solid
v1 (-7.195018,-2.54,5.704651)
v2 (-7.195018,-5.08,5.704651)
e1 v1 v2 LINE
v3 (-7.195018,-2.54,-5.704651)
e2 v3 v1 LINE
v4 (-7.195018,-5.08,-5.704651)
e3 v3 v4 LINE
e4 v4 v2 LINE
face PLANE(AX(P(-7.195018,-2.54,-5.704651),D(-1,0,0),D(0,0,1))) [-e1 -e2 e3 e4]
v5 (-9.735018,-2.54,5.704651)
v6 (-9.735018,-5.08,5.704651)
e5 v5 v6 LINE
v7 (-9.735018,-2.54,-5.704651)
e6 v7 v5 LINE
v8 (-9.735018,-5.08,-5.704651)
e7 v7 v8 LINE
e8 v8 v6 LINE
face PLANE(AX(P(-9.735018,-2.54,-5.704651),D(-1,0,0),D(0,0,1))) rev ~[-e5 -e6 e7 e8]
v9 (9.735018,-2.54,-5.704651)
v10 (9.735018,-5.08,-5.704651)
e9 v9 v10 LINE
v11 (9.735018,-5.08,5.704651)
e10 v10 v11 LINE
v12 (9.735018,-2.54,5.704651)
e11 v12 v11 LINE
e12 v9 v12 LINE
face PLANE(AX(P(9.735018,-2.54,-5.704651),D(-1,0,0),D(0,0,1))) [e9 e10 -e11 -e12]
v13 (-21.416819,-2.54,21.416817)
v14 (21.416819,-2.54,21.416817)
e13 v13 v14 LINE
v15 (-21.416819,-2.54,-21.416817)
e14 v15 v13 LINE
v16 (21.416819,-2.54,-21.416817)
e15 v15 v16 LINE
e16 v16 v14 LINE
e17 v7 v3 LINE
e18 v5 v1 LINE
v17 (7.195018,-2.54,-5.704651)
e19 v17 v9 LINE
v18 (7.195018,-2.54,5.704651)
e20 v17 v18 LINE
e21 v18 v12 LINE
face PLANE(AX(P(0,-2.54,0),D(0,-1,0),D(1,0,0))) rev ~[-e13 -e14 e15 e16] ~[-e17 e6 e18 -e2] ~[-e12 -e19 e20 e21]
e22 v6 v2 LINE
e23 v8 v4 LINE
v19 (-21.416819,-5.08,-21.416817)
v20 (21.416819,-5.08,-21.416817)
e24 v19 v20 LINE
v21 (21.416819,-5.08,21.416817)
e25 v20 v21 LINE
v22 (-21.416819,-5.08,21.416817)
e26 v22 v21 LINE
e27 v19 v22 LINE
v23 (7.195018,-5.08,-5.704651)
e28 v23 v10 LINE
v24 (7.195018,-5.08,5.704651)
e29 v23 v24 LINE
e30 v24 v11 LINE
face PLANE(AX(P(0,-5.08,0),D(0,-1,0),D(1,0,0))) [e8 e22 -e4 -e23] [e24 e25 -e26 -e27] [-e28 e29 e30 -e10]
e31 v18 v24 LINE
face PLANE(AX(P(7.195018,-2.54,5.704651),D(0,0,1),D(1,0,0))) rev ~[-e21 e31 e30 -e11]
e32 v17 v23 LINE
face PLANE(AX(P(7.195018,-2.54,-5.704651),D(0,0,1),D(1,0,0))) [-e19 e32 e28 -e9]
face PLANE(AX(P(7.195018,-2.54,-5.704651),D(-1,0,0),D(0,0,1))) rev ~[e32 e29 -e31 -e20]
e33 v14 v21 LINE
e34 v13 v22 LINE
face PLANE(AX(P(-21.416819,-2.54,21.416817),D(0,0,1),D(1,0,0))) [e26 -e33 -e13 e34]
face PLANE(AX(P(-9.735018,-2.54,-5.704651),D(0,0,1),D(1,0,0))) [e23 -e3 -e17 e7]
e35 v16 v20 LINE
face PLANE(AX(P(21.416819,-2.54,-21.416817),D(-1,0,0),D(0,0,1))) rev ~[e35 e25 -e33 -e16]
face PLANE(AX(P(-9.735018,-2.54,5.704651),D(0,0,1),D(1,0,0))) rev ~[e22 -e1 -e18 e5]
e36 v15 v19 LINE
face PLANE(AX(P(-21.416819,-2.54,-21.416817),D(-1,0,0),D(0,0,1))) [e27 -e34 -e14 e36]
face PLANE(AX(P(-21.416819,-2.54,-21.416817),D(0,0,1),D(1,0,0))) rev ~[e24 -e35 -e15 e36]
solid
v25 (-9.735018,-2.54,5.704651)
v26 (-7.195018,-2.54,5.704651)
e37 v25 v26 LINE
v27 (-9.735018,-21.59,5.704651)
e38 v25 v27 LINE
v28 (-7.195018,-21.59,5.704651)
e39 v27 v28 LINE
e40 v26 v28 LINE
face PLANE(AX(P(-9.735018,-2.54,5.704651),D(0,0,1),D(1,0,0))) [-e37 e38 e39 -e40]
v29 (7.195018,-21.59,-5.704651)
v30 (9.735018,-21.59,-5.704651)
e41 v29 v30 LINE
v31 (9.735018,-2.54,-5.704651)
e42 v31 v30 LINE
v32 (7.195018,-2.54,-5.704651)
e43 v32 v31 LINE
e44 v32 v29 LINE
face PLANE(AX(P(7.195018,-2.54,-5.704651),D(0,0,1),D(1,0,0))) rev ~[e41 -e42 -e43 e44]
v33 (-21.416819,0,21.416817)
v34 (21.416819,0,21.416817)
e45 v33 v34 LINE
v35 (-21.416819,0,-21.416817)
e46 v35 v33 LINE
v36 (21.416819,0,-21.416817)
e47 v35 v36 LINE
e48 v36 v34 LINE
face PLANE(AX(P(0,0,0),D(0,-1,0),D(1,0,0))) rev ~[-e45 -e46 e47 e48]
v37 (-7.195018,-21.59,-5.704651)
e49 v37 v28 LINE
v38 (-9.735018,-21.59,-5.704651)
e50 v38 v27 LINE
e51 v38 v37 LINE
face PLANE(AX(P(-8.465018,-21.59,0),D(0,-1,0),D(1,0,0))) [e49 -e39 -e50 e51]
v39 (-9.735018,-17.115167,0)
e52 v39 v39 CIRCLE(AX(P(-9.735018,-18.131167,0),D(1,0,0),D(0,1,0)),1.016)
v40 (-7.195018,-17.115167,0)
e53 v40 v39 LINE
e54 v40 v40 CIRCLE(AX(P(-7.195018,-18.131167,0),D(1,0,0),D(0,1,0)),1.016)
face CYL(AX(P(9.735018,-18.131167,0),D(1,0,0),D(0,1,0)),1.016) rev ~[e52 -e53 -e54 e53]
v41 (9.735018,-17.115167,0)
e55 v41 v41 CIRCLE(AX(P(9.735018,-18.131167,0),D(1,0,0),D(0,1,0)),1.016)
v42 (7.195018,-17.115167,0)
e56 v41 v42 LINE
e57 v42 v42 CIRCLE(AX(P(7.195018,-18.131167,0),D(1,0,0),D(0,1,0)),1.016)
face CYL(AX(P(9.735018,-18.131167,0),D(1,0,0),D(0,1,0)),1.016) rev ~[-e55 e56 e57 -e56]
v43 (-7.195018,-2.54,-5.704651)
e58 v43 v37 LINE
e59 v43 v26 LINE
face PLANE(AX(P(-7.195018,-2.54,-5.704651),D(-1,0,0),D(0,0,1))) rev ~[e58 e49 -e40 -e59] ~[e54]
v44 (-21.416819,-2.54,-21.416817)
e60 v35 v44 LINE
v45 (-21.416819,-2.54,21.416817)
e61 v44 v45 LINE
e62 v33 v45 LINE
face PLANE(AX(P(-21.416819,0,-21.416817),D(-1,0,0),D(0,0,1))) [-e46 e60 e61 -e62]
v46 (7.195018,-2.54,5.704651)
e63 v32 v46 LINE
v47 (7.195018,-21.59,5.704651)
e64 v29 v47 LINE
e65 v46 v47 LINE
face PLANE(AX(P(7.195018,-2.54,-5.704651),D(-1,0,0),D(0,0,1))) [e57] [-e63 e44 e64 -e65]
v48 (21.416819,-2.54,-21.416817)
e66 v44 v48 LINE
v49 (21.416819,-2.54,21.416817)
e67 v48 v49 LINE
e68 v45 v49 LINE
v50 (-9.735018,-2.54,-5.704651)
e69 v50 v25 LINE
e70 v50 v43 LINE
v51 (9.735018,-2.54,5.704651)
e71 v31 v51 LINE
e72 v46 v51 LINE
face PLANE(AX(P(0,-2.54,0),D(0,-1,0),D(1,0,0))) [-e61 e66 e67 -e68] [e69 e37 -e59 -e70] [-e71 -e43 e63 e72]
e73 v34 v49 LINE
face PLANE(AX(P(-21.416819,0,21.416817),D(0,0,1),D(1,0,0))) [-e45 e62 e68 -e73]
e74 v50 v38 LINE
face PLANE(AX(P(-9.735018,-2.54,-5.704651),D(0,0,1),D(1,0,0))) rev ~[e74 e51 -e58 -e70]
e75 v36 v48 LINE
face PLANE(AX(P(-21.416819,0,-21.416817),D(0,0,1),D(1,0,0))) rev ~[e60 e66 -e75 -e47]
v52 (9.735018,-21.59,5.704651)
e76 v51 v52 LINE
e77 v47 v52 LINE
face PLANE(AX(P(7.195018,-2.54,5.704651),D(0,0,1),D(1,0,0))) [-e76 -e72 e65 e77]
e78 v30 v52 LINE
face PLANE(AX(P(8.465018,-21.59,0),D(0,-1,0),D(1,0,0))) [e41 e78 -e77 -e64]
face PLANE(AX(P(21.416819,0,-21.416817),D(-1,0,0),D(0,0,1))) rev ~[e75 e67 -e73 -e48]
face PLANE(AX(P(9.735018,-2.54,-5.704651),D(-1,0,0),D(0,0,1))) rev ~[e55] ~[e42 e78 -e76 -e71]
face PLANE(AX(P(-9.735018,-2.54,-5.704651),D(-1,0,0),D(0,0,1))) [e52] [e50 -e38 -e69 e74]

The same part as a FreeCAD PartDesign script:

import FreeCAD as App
import Part
import Sketcher
from FreeCAD import Vector
Q = App.Units.Quantity


def add_polygon(sketch, points):
    """Adds a closed chain of lines whose ends are joined by coincident constraints."""
    first, n = sketch.GeometryCount, len(points)
    for a, b in zip(points, points[1:] + points[:1]):
        sketch.addGeometry(Part.LineSegment(App.Vector(*a, 0), App.Vector(*b, 0)), False)
    for i in range(n):
        sketch.addConstraint(Sketcher.Constraint("Coincident", first + i, 2, first + (i + 1) % n, 1))

doc = App.newDocument("Part")
params = doc.addObject("Spreadsheet::Sheet", "Params")
for row, (alias, value) in enumerate([
    ("pad1_length", "0.1 in"),
    ("sketch2_width", "0.1 in"),
    ("pad2_length", "0.75 in"),
    ("sketch3_diameter", "0.08 in"),
    ("sketch4_width", "0.1 in"),
    ("pad3_length", "0.1 in"),
], start=1):
    params.set(f"A{row}", alias)
    params.set(f"B{row}", "=" + value)
    params.setAlias(f"B{row}", alias)

body = doc.addObject("PartDesign::Body", "Body")

# Sketch on XZ plane
sketch1 = body.newObject("Sketcher::SketchObject", "Sketch")
sketch1.AttachmentSupport = (doc.getObject("XZ_Plane"), [""])
sketch1.MapMode = "FlatFace"
add_polygon(sketch1, [(-21, 21), (-21, -21), (21, -21), (21, 21)])  # lines 0-3
sketch1.addConstraint([
    Sketcher.Constraint("Vertical", 0),
    Sketcher.Constraint("Horizontal", 1),
    Sketcher.Constraint("Vertical", 2),
    Sketcher.Constraint("Horizontal", 3),
    Sketcher.Constraint("Symmetric", 0, 2, 2, 2, -1, 1),
    Sketcher.Constraint("DistanceX", 1, 1, 1, 2, 42.833638),
    Sketcher.Constraint("DistanceY", 0, 2, 0, 1, 42.833634),
])
pad1 = body.newObject("PartDesign::Pad", "Pad")
pad1.Profile = sketch1
pad1.setExpression("Length", "Params.pad1_length")

# Sketch on XZ plane
sketch2 = body.newObject("Sketcher::SketchObject", "Sketch001")
sketch2.AttachmentSupport = (doc.getObject("XZ_Plane"), [""])
sketch2.MapMode = "FlatFace"
sketch2.AttachmentOffset = App.Placement(Vector(0, 0, 0.1 * 25.4), App.Rotation())
add_polygon(sketch2, [(-9.7, 5.7), (-9.7, -5.7), (-7.2, -5.7), (-7.2, 5.7)])  # lines 0-3
add_polygon(sketch2, [(7.2, 5.7), (7.2, -5.7), (9.7, -5.7), (9.7, 5.7)])  # lines 4-7
sketch2.addConstraint([
    Sketcher.Constraint("Vertical", 0),
    Sketcher.Constraint("Horizontal", 1),
    Sketcher.Constraint("Vertical", 2),
    Sketcher.Constraint("Horizontal", 3),
    Sketcher.Constraint("Vertical", 4),
    Sketcher.Constraint("Horizontal", 5),
    Sketcher.Constraint("Vertical", 6),
    Sketcher.Constraint("Horizontal", 7),
    Sketcher.Constraint("Symmetric", 2, 2, 4, 2, -1, 1),
    Sketcher.Constraint("Symmetric", 0, 2, 6, 2, -1, 1),
    Sketcher.Constraint("Horizontal", 1, 2, 4, 2),
    Sketcher.Constraint("DistanceX", 1, 1, 1, 2, Q("0.1 in")),
    Sketcher.Constraint("DistanceY", 0, 2, 0, 1, 11.409302),
    Sketcher.Constraint("DistanceX", 0, 2, -1, 1, 9.735018),
])
sketch2.setExpression("Constraints[19]", "Params.sketch2_width")
pad2 = body.newObject("PartDesign::Pad", "Pad001")
pad2.Profile = sketch2
pad2.setExpression("Length", "Params.pad2_length")

# Sketch on YZ plane
sketch3 = body.newObject("Sketcher::SketchObject", "Sketch002")
sketch3.AttachmentSupport = (doc.getObject("YZ_Plane"), [""])
sketch3.MapMode = "FlatFace"
sketch3.AttachmentOffset = App.Placement(Vector(0, 0, 9.735018), App.Rotation())
sketch3.addGeometry(Part.Circle(Vector(-18.1, 0, 0), Vector(0, 0, 1), 1), False)
sketch3.addConstraint([
    Sketcher.Constraint("PointOnObject", 0, 3, -1),
    Sketcher.Constraint("Diameter", 0, Q("0.08 in")),
    Sketcher.Constraint("DistanceX", 0, 3, -1, 1, 18.131167),
])
sketch3.setExpression("Constraints[1]", "Params.sketch3_diameter")
pocket1 = body.newObject("PartDesign::Pocket", "Pocket")
pocket1.Profile = sketch3
pocket1.Type = "ThroughAll"
body2 = doc.addObject("PartDesign::Body", "Body001")

# Sketch on XZ plane
sketch4 = body2.newObject("Sketcher::SketchObject", "Sketch003")
sketch4.AttachmentSupport = (doc.getObject("XZ_Plane001"), [""])
sketch4.MapMode = "FlatFace"
sketch4.AttachmentOffset = App.Placement(Vector(0, 0, 0.1 * 25.4), App.Rotation())
add_polygon(sketch4, [(-21.4, 21.4), (-21.4, -21.4), (21.4, -21.4), (21.4, 21.4)])  # lines 0-3
add_polygon(sketch4, [(-7.2, -5.7), (-9.7, -5.7), (-9.7, 5.7), (-7.2, 5.7)])  # lines 4-7
add_polygon(sketch4, [(9.7, -5.7), (7.2, -5.7), (7.2, 5.7), (9.7, 5.7)])  # lines 8-11
sketch4.addConstraint([
    Sketcher.Constraint("Vertical", 0),
    Sketcher.Constraint("Horizontal", 1),
    Sketcher.Constraint("Vertical", 2),
    Sketcher.Constraint("Horizontal", 3),
    Sketcher.Constraint("Horizontal", 4),
    Sketcher.Constraint("Vertical", 5),
    Sketcher.Constraint("Horizontal", 6),
    Sketcher.Constraint("Vertical", 7),
    Sketcher.Constraint("Horizontal", 8),
    Sketcher.Constraint("Vertical", 9),
    Sketcher.Constraint("Horizontal", 10),
    Sketcher.Constraint("Vertical", 11),
    Sketcher.Constraint("Symmetric", 0, 2, 2, 2, -1, 1),
    Sketcher.Constraint("Symmetric", 6, 2, 8, 2, -1, 1),
    Sketcher.Constraint("Symmetric", 4, 2, 10, 2, -1, 1),
    Sketcher.Constraint("Horizontal", 7, 2, 8, 2),
    Sketcher.Constraint("DistanceX", 4, 2, 4, 1, Q("0.1 in")),
    Sketcher.Constraint("DistanceX", 0, 2, 4, 2, 11.681801),
    Sketcher.Constraint("DistanceX", 1, 1, 1, 2, 42.833638),
    Sketcher.Constraint("DistanceY", 0, 2, 0, 1, 42.833634),
    Sketcher.Constraint("DistanceY", 5, 1, 5, 2, 11.409302),
])
sketch4.setExpression("Constraints[28]", "Params.sketch4_width")
pad3 = body2.newObject("PartDesign::Pad", "Pad002")
pad3.Profile = sketch4
pad3.setExpression("Length", "Params.pad3_length")

doc.recompute()
